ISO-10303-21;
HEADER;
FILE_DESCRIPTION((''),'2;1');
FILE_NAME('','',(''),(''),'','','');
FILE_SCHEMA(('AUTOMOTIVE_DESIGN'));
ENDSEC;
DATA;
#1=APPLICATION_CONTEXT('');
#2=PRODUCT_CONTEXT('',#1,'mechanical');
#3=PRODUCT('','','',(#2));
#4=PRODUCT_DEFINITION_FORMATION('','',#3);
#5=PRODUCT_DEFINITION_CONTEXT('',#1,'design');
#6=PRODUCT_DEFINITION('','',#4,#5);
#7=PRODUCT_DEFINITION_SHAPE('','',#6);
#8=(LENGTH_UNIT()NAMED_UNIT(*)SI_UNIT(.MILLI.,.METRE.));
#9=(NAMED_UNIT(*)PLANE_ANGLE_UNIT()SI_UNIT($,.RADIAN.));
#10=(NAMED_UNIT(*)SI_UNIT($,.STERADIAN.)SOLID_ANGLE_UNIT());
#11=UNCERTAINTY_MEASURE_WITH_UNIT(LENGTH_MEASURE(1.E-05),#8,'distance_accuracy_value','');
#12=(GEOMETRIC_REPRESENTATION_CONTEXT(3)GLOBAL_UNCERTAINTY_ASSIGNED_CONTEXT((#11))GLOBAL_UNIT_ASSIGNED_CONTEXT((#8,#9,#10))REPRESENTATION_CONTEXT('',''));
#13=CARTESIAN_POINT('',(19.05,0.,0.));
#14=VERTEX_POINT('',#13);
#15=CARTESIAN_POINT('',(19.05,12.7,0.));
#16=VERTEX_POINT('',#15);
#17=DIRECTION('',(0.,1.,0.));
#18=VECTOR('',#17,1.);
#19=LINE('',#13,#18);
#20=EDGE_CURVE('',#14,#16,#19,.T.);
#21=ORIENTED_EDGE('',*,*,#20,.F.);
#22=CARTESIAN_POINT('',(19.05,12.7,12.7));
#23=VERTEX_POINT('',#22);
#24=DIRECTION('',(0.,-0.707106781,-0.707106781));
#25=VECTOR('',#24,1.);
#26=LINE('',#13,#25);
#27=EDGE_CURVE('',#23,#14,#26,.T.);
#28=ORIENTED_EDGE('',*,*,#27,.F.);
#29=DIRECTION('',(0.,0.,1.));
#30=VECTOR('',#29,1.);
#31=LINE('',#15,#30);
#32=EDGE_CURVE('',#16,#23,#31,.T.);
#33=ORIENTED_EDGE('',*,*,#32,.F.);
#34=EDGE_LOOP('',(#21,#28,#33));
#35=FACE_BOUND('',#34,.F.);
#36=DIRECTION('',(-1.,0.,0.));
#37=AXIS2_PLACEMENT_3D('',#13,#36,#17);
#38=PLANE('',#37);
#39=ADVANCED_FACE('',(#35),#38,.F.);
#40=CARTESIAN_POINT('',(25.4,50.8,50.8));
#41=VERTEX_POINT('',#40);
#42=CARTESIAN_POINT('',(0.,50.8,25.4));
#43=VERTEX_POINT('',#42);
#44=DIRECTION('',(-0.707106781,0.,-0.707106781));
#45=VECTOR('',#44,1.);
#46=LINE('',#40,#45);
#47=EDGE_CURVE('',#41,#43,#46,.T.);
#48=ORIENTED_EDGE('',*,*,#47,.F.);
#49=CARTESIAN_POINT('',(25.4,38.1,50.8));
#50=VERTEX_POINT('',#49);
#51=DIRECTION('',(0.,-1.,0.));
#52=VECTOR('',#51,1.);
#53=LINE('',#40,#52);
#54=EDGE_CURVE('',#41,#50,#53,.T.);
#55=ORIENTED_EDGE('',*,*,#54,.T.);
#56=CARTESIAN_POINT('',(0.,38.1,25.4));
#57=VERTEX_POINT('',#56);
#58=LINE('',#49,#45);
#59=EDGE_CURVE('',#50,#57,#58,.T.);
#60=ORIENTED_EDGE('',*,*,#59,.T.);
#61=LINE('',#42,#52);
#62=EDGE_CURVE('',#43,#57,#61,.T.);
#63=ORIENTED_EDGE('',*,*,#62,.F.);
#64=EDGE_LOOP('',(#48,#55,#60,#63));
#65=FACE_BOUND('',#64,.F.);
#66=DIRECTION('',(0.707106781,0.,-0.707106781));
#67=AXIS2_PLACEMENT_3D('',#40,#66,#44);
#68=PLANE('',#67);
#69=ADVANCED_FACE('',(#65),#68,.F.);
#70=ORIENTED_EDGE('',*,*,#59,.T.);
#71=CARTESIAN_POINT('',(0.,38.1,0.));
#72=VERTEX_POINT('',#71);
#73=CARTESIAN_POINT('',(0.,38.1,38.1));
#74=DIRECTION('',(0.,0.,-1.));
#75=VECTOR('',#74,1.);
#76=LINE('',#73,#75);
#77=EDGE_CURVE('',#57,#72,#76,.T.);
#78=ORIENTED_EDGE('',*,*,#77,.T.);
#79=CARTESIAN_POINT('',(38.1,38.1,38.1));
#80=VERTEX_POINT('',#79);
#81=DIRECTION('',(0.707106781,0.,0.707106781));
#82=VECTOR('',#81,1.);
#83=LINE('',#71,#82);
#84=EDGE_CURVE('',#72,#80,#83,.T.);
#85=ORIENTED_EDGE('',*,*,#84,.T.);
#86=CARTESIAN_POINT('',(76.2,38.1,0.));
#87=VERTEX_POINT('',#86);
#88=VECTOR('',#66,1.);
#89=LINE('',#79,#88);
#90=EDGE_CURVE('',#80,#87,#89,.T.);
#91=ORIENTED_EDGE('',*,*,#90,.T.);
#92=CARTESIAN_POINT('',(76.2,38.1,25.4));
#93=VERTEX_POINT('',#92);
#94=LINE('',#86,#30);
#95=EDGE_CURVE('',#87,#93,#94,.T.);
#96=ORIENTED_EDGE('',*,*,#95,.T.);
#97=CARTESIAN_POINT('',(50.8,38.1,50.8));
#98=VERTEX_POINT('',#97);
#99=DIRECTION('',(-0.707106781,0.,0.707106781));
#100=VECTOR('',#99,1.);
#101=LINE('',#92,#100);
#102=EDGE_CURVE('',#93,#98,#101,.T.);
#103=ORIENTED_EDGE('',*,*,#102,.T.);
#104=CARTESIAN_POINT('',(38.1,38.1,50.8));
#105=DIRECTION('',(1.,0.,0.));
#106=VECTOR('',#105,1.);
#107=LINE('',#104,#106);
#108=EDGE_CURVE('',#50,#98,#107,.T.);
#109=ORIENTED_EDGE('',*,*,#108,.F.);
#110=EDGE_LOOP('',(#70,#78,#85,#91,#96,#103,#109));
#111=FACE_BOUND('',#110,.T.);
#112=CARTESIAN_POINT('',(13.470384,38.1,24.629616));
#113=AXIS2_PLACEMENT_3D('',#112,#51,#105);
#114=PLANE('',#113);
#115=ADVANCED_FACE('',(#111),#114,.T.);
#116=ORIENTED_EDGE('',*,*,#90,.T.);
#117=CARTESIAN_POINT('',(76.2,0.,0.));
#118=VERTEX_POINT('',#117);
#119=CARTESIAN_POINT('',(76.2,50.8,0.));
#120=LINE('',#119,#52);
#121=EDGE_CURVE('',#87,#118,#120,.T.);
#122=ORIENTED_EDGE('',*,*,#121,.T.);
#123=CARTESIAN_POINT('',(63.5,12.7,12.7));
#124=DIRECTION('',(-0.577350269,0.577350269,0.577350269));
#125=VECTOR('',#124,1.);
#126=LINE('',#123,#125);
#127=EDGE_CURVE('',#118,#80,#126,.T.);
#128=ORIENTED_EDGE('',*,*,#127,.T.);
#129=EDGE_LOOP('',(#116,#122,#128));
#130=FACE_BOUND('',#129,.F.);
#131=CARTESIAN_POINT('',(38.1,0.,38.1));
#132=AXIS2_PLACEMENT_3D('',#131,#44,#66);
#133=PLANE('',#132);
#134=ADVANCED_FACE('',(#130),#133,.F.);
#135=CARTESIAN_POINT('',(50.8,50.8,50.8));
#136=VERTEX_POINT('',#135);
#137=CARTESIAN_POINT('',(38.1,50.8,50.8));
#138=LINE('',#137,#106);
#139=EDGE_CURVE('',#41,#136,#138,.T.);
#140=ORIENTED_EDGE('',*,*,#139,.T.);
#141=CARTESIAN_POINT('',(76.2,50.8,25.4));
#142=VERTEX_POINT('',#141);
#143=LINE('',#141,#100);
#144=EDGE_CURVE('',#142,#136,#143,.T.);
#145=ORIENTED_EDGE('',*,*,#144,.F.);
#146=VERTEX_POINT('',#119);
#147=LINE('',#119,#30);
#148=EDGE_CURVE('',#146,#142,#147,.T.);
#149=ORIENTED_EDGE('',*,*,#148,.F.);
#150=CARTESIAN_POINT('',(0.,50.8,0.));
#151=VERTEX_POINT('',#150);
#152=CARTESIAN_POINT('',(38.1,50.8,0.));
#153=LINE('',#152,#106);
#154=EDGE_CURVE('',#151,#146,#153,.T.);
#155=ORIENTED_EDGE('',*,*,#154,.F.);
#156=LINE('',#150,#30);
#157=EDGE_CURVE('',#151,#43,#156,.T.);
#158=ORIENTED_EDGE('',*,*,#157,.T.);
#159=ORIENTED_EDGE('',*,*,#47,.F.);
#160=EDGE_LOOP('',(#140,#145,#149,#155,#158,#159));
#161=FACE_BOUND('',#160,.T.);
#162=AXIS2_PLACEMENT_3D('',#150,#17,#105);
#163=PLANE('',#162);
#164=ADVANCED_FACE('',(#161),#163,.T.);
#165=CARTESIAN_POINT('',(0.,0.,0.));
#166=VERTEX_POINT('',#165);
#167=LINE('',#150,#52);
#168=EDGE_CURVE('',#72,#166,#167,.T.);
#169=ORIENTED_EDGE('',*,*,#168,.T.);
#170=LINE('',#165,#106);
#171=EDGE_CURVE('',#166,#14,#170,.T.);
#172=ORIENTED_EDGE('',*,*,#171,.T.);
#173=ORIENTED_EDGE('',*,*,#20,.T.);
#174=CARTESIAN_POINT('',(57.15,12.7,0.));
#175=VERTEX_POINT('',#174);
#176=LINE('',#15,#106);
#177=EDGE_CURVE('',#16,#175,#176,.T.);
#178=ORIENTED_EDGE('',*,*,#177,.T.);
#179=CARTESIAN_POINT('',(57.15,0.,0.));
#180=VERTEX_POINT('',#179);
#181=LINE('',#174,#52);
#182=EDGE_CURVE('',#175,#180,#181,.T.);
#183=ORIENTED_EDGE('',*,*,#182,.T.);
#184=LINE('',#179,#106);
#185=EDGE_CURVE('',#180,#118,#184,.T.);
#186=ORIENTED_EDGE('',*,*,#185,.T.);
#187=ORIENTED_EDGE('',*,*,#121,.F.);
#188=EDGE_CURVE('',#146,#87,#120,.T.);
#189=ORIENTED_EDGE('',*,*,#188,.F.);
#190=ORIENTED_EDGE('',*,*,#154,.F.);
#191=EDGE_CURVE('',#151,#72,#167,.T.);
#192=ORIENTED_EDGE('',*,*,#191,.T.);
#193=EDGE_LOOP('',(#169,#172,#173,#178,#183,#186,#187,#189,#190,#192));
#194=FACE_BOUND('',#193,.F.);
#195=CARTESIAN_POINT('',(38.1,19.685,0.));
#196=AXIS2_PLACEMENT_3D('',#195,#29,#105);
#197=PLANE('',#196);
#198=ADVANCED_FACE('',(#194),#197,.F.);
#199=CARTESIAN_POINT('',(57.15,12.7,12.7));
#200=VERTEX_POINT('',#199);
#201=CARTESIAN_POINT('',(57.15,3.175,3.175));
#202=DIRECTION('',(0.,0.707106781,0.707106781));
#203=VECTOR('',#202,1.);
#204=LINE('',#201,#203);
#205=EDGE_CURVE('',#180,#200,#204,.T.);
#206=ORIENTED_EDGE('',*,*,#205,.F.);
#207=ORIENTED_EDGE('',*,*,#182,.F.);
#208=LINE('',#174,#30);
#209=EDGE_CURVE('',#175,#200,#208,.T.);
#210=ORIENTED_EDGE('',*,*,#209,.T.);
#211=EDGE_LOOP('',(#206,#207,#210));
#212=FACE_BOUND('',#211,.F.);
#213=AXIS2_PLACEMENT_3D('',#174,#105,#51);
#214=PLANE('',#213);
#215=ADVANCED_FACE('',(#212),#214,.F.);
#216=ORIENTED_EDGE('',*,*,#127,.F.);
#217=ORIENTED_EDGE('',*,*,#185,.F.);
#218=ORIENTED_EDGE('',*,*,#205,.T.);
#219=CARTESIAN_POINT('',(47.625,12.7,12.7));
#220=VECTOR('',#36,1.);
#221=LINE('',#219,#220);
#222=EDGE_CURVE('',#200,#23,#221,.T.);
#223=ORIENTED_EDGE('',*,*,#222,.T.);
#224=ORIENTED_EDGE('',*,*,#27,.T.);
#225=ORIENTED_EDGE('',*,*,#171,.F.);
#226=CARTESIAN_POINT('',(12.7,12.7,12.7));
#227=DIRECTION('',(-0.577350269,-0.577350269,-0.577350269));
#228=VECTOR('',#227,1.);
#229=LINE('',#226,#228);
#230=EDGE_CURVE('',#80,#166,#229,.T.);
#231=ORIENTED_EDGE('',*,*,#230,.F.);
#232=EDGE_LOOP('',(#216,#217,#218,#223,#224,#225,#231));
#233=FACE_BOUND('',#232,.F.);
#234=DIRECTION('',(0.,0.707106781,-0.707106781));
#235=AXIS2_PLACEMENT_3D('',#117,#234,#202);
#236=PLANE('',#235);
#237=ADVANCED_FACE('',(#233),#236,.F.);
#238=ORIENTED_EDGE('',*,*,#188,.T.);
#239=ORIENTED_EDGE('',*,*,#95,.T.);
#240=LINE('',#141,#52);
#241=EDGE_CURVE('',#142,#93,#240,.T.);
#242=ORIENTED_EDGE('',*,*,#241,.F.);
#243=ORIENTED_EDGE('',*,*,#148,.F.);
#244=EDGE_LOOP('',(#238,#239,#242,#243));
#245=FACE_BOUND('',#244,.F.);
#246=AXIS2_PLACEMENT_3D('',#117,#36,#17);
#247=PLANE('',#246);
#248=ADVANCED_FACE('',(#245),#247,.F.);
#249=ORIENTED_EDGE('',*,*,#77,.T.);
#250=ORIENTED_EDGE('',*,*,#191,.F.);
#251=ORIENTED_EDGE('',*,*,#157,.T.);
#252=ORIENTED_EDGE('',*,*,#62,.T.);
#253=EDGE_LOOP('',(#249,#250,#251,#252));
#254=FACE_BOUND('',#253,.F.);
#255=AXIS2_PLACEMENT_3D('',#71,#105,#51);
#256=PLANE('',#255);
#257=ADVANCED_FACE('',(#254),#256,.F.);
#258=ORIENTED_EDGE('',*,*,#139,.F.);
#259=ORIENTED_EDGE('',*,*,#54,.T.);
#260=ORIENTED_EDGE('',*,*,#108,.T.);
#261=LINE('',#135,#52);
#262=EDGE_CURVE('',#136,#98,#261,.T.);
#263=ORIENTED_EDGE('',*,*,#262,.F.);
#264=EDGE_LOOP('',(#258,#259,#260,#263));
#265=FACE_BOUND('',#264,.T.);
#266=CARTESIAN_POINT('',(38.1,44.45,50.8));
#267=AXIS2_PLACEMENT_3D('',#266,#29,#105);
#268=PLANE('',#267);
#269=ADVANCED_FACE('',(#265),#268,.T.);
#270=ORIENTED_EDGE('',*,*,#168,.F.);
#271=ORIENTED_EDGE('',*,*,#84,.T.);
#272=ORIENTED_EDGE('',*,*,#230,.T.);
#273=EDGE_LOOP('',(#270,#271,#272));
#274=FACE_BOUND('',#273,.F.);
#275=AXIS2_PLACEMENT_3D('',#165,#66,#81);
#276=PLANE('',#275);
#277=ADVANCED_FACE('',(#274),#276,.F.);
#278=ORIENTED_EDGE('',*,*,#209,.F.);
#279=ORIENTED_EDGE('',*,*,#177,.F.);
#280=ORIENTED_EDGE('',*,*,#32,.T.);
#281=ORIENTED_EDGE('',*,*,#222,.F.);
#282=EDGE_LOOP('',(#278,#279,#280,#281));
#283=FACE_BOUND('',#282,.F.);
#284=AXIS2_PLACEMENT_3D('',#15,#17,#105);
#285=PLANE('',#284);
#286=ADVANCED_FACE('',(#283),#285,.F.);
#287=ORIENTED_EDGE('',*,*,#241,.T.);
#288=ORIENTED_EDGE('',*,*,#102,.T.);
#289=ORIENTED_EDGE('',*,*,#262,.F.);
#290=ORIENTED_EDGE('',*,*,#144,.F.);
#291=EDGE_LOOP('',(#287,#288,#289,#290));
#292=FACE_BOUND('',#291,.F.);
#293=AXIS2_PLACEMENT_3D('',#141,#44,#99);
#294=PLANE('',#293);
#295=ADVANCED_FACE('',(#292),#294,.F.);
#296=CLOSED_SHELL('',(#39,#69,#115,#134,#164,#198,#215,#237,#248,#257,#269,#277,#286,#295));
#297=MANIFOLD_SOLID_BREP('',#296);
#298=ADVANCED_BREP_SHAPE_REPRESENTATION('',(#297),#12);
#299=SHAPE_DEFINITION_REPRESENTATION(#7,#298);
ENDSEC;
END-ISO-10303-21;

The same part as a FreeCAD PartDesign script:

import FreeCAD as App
import Part
import Sketcher
Q = App.Units.Quantity


def add_polygon(sketch, points):
    """Adds a closed chain of lines whose ends are joined by coincident constraints."""
    first, n = sketch.GeometryCount, len(points)
    for a, b in zip(points, points[1:] + points[:1]):
        sketch.addGeometry(Part.LineSegment(App.Vector(*a, 0), App.Vector(*b, 0)), False)
    for i in range(n):
        sketch.addConstraint(Sketcher.Constraint("Coincident", first + i, 2, first + (i + 1) % n, 1))

doc = App.newDocument("Part")
params = doc.addObject("Spreadsheet::Sheet", "Params")
for row, (alias, value) in enumerate([
    ("sketch1_width", "3 in"),
    ("sketch1_height", "0.5 in"),
    ("pad1_length", "2 in"),
    ("sketch2_width", "1 in"),
    ("pocket1_length", "1 in"),
    ("sketch3_width", "1 in"),
    ("pocket2_length", "1 in"),
    ("sketch4_width", "3 in"),
    ("sketch4_width2", "1.5 in"),
    ("sketch4_height", "0.5 in"),
    ("pad2_length", "1.5 in"),
    ("sketch5_width", "1.5 in"),
    ("sketch6_width", "1.5 in"),
    ("pocket4_length", "1.5 in"),
    ("sketch7_width", "1.5 in"),
    ("pocket5_length", "1.5 in"),
], start=1):
    params.set(f"A{row}", alias)
    params.set(f"B{row}", "=" + value)
    params.setAlias(f"B{row}", alias)

body = doc.addObject("PartDesign::Body", "Body")

sketch1 = body.newObject("Sketcher::SketchObject", "Sketch")
sketch1.AttachmentSupport = (doc.getObject("XY_Plane"), [""])
sketch1.MapMode = "FlatFace"
add_polygon(sketch1, [(0, 51), (0, 38), (76, 38), (76, 51)])
sketch1.addConstraint([
    Sketcher.Constraint("Vertical", 0),
    Sketcher.Constraint("Horizontal", 1),
    Sketcher.Constraint("Vertical", 2),
    Sketcher.Constraint("Horizontal", 3),
    Sketcher.Constraint("PointOnObject", 0, 2, -2),
    Sketcher.Constraint("DistanceX", 1, 1, 1, 2, Q("3 in")),
    Sketcher.Constraint("DistanceY", 0, 2, 0, 1, Q("0.5 in")),
    Sketcher.Constraint("DistanceY", -1, 1, 2, 2, Q("2 in")),
])
sketch1.setExpression("Constraints[9]", "Params.sketch1_width")
sketch1.setExpression("Constraints[10]", "Params.sketch1_height")
pad1 = body.newObject("PartDesign::Pad", "Pad")
pad1.Profile = sketch1
pad1.setExpression("Length", "Params.pad1_length")

sketch2 = body.newObject("Sketcher::SketchObject", "Sketch001")
sketch2.AttachmentSupport = (doc.getObject("XZ_Plane"), [""])
sketch2.MapMode = "FlatFace"
sketch2.AttachmentOffset = App.Placement(App.Vector(0, 0, -2 * 25.4), App.Rotation())
add_polygon(sketch2, [(0, 51), (25, 51), (0, 25)])
sketch2.addConstraint([
    Sketcher.Constraint("Horizontal", 0),
    Sketcher.Constraint("Vertical", 2),
    Sketcher.Constraint("PointOnObject", 1, 2, -2),
    Sketcher.Constraint("Equal", 0, 2),
    Sketcher.Constraint("DistanceX", 0, 1, 0, 2, Q("1 in")),
    Sketcher.Constraint("DistanceY", -1, 1, 0, 2, Q("2 in")),
])
sketch2.setExpression("Constraints[7]", "Params.sketch2_width")
pocket1 = body.newObject("PartDesign::Pocket", "Pocket")
pocket1.Profile = sketch2
pocket1.setExpression("Length", "Params.pocket1_length")
pocket1.Reversed = True

sketch3 = body.newObject("Sketcher::SketchObject", "Sketch002")
sketch3.AttachmentSupport = (doc.getObject("XZ_Plane"), [""])
sketch3.MapMode = "FlatFace"
sketch3.AttachmentOffset = App.Placement(App.Vector(0, 0, -2 * 25.4), App.Rotation())
add_polygon(sketch3, [(51, 51), (76, 51), (76, 25)])
sketch3.addConstraint([
    Sketcher.Constraint("Horizontal", 0),
    Sketcher.Constraint("Vertical", 1),
    Sketcher.Constraint("Equal", 0, 1),
    Sketcher.Constraint("DistanceX", 0, 1, 0, 2, Q("1 in")),
    Sketcher.Constraint("DistanceX", -1, 1, 0, 2, Q("3 in")),
    Sketcher.Constraint("DistanceY", -1, 1, 0, 2, Q("2 in")),
])
sketch3.setExpression("Constraints[6]", "Params.sketch3_width")
pocket2 = body.newObject("PartDesign::Pocket", "Pocket001")
pocket2.Profile = sketch3
pocket2.setExpression("Length", "Params.pocket2_length")
pocket2.Reversed = True

sketch4 = body.newObject("Sketcher::SketchObject", "Sketch003")
sketch4.AttachmentSupport = (doc.getObject("XY_Plane"), [""])
sketch4.MapMode = "FlatFace"
add_polygon(sketch4, [(0, 38), (0, 0), (19, 0), (19, 13), (57, 13), (57, 0), (76, 0), (76, 38)])
sketch4.addConstraint([
    Sketcher.Constraint("Vertical", 0),
    Sketcher.Constraint("Horizontal", 1),
    Sketcher.Constraint("Vertical", 2),
    Sketcher.Constraint("Horizontal", 3),
    Sketcher.Constraint("Vertical", 4),
    Sketcher.Constraint("Horizontal", 5),
    Sketcher.Constraint("Vertical", 6),
    Sketcher.Constraint("Horizontal", 7),
    Sketcher.Constraint("Coincident", 0, 2, -1, 1),
    Sketcher.Constraint("PointOnObject", 4, 2, -1),
    Sketcher.Constraint("Equal", 1, 5),
    Sketcher.Constraint("Equal", 3, 0),
    Sketcher.Constraint("DistanceX", 7, 2, 7, 1, Q("3 in")),
    Sketcher.Constraint("DistanceX", 3, 1, 3, 2, Q("1.5 in")),
    Sketcher.Constraint("DistanceY", 2, 1, 2, 2, Q("0.5 in")),
])
sketch4.setExpression("Constraints[20]", "Params.sketch4_width")
sketch4.setExpression("Constraints[21]", "Params.sketch4_width2")
sketch4.setExpression("Constraints[22]", "Params.sketch4_height")
pad2 = body.newObject("PartDesign::Pad", "Pad001")
pad2.Profile = sketch4
pad2.setExpression("Length", "Params.pad2_length")

sketch5 = body.newObject("Sketcher::SketchObject", "Sketch004")
sketch5.AttachmentSupport = (doc.getObject("YZ_Plane"), [""])
sketch5.MapMode = "FlatFace"
sketch5.AttachmentOffset = App.Placement(App.Vector(0, 0, 3 * 25.4), App.Rotation())
add_polygon(sketch5, [(0, 0), (38, 38), (0, 38)])
sketch5.addConstraint([
    Sketcher.Constraint("Horizontal", 1),
    Sketcher.Constraint("Vertical", 2),
    Sketcher.Constraint("Coincident", 2, 2, -1, 1),
    Sketcher.Constraint("Equal", 1, 2),
    Sketcher.Constraint("DistanceX", 1, 2, 1, 1, Q("1.5 in")),
])
sketch5.setExpression("Constraints[7]", "Params.sketch5_width")
pocket3 = body.newObject("PartDesign::Pocket", "Pocket002")
pocket3.Profile = sketch5
pocket3.Type = "ThroughAll"

sketch6 = body.newObject("Sketcher::SketchObject", "Sketch005")
sketch6.AttachmentSupport = (doc.getObject("XZ_Plane"), [""])
sketch6.MapMode = "FlatFace"
add_polygon(sketch6, [(38, 38), (76, 0), (76, 38)])
sketch6.addConstraint([
    Sketcher.Constraint("Vertical", 1),
    Sketcher.Constraint("Horizontal", 2),
    Sketcher.Constraint("PointOnObject", 0, 2, -1),
    Sketcher.Constraint("Equal", 2, 1),
    Sketcher.Constraint("DistanceX", 2, 2, 2, 1, Q("1.5 in")),
    Sketcher.Constraint("DistanceX", -1, 1, 0, 2, Q("3 in")),
])
sketch6.setExpression("Constraints[7]", "Params.sketch6_width")
pocket4 = body.newObject("PartDesign::Pocket", "Pocket003")
pocket4.Profile = sketch6
pocket4.setExpression("Length", "Params.pocket4_length")

sketch7 = body.newObject("Sketcher::SketchObject", "Sketch006")
sketch7.AttachmentSupport = (doc.getObject("XZ_Plane"), [""])
sketch7.MapMode = "FlatFace"
add_polygon(sketch7, [(0, 38), (0, 0), (38, 38)])
sketch7.addConstraint([
    Sketcher.Constraint("Vertical", 0),
    Sketcher.Constraint("Horizontal", 2),
    Sketcher.Constraint("Coincident", 0, 2, -1, 1),
    Sketcher.Constraint("Equal", 2, 0),
    Sketcher.Constraint("DistanceX", 2, 2, 2, 1, Q("1.5 in")),
])
sketch7.setExpression("Constraints[7]", "Params.sketch7_width")
pocket5 = body.newObject("PartDesign::Pocket", "Pocket004")
pocket5.Profile = sketch7
pocket5.setExpression("Length", "Params.pocket5_length")

doc.recompute()
